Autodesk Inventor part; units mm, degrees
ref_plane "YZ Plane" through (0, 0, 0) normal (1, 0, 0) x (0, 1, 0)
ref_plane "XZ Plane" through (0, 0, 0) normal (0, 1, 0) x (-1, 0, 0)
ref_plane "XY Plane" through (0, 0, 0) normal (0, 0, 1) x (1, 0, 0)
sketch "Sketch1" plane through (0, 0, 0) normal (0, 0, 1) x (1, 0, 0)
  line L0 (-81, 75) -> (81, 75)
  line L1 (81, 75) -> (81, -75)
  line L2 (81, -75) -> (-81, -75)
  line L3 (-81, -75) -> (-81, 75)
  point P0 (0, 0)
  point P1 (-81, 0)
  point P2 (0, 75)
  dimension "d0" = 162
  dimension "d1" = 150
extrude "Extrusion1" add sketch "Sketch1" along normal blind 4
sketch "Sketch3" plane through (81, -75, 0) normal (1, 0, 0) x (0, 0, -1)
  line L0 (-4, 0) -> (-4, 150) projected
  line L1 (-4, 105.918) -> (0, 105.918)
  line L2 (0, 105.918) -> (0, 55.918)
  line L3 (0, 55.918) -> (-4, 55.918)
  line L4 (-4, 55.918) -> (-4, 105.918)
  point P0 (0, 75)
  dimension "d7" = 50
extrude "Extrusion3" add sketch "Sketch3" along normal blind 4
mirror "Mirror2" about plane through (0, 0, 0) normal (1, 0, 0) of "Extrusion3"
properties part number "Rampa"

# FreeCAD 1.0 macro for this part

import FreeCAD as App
import Part
import Sketcher
from FreeCAD import Vector

doc = App.newDocument("Part")
body = doc.addObject("PartDesign::Body", "Body")

# Sketch on XY plane
sketch1 = body.newObject("Sketcher::SketchObject", "Sketch")
sketch1.AttachmentSupport = (doc.getObject("XY_Plane"), [""])
sketch1.MapMode = "FlatFace"
sketch1.addGeometry([
    Part.LineSegment(Vector(81, 75, 0), Vector(-81, 75, 0)),
    Part.LineSegment(Vector(-81, 75, 0), Vector(-81, -75, 0)),
    Part.LineSegment(Vector(-81, -75, 0), Vector(81, -75, 0)),
    Part.LineSegment(Vector(81, -75, 0), Vector(81, 75, 0)),
], False)
sketch1.addConstraint([
    Sketcher.Constraint("Coincident", 0, 2, 1, 1),
    Sketcher.Constraint("Coincident", 1, 2, 2, 1),
    Sketcher.Constraint("Coincident", 2, 2, 3, 1),
    Sketcher.Constraint("Coincident", 3, 2, 0, 1),
    Sketcher.Constraint("Horizontal", 0),
    Sketcher.Constraint("Vertical", 1),
    Sketcher.Constraint("Horizontal", 2),
    Sketcher.Constraint("Vertical", 3),
    Sketcher.Constraint("Symmetric", 0, 2, 2, 2, -1, 1),
    Sketcher.Constraint("DistanceX", 0, 2, 0, 1, 162.0),
    Sketcher.Constraint("DistanceY", 1, 2, 1, 1, 150.0),
])
pad1 = body.newObject("PartDesign::Pad", "Pad")
pad1.Profile = sketch1
pad1.Length = 4

# Sketch on YZ plane
sketch2 = body.newObject("Sketcher::SketchObject", "Sketch001")
sketch2.AttachmentSupport = (doc.getObject("YZ_Plane"), [""])
sketch2.MapMode = "FlatFace"
sketch2.AttachmentOffset = App.Placement(Vector(0, 0, 81), App.Rotation())
sketch2.addGeometry([
    Part.LineSegment(Vector(30.9, 4, 0), Vector(-19.1, 4, 0)),
    Part.LineSegment(Vector(-19.1, 4, 0), Vector(-19.1, 0, 0)),
    Part.LineSegment(Vector(-19.1, 0, 0), Vector(30.9, 0, 0)),
    Part.LineSegment(Vector(30.9, 0, 0), Vector(30.9, 4, 0)),
], False)
sketch2.addConstraint([
    Sketcher.Constraint("Coincident", 0, 2, 1, 1),
    Sketcher.Constraint("Coincident", 1, 2, 2, 1),
    Sketcher.Constraint("Coincident", 2, 2, 3, 1),
    Sketcher.Constraint("Coincident", 3, 2, 0, 1),
    Sketcher.Constraint("Horizontal", 0),
    Sketcher.Constraint("Vertical", 1),
    Sketcher.Constraint("Horizontal", 2),
    Sketcher.Constraint("Vertical", 3),
    Sketcher.Constraint("PointOnObject", 1, 2, -1),
    Sketcher.Constraint("DistanceX", 0, 2, 0, 1, 50.0),
    Sketcher.Constraint("DistanceY", 1, 2, 1, 1, 4.0),
    Sketcher.Constraint("DistanceX", 0, 2, -1, 1, 19.082),
])
pad2 = body.newObject("PartDesign::Pad", "Pad001")
pad2.Profile = sketch2
pad2.Length = 4
doc.recompute()

mirrored = body.newObject("PartDesign::Mirrored", "Mirrored")
mirrored.Originals = [pad2]
mirrored.MirrorPlane = (doc.getObject("YZ_Plane"), [""])
body.Tip = mirrored

doc.recompute()
